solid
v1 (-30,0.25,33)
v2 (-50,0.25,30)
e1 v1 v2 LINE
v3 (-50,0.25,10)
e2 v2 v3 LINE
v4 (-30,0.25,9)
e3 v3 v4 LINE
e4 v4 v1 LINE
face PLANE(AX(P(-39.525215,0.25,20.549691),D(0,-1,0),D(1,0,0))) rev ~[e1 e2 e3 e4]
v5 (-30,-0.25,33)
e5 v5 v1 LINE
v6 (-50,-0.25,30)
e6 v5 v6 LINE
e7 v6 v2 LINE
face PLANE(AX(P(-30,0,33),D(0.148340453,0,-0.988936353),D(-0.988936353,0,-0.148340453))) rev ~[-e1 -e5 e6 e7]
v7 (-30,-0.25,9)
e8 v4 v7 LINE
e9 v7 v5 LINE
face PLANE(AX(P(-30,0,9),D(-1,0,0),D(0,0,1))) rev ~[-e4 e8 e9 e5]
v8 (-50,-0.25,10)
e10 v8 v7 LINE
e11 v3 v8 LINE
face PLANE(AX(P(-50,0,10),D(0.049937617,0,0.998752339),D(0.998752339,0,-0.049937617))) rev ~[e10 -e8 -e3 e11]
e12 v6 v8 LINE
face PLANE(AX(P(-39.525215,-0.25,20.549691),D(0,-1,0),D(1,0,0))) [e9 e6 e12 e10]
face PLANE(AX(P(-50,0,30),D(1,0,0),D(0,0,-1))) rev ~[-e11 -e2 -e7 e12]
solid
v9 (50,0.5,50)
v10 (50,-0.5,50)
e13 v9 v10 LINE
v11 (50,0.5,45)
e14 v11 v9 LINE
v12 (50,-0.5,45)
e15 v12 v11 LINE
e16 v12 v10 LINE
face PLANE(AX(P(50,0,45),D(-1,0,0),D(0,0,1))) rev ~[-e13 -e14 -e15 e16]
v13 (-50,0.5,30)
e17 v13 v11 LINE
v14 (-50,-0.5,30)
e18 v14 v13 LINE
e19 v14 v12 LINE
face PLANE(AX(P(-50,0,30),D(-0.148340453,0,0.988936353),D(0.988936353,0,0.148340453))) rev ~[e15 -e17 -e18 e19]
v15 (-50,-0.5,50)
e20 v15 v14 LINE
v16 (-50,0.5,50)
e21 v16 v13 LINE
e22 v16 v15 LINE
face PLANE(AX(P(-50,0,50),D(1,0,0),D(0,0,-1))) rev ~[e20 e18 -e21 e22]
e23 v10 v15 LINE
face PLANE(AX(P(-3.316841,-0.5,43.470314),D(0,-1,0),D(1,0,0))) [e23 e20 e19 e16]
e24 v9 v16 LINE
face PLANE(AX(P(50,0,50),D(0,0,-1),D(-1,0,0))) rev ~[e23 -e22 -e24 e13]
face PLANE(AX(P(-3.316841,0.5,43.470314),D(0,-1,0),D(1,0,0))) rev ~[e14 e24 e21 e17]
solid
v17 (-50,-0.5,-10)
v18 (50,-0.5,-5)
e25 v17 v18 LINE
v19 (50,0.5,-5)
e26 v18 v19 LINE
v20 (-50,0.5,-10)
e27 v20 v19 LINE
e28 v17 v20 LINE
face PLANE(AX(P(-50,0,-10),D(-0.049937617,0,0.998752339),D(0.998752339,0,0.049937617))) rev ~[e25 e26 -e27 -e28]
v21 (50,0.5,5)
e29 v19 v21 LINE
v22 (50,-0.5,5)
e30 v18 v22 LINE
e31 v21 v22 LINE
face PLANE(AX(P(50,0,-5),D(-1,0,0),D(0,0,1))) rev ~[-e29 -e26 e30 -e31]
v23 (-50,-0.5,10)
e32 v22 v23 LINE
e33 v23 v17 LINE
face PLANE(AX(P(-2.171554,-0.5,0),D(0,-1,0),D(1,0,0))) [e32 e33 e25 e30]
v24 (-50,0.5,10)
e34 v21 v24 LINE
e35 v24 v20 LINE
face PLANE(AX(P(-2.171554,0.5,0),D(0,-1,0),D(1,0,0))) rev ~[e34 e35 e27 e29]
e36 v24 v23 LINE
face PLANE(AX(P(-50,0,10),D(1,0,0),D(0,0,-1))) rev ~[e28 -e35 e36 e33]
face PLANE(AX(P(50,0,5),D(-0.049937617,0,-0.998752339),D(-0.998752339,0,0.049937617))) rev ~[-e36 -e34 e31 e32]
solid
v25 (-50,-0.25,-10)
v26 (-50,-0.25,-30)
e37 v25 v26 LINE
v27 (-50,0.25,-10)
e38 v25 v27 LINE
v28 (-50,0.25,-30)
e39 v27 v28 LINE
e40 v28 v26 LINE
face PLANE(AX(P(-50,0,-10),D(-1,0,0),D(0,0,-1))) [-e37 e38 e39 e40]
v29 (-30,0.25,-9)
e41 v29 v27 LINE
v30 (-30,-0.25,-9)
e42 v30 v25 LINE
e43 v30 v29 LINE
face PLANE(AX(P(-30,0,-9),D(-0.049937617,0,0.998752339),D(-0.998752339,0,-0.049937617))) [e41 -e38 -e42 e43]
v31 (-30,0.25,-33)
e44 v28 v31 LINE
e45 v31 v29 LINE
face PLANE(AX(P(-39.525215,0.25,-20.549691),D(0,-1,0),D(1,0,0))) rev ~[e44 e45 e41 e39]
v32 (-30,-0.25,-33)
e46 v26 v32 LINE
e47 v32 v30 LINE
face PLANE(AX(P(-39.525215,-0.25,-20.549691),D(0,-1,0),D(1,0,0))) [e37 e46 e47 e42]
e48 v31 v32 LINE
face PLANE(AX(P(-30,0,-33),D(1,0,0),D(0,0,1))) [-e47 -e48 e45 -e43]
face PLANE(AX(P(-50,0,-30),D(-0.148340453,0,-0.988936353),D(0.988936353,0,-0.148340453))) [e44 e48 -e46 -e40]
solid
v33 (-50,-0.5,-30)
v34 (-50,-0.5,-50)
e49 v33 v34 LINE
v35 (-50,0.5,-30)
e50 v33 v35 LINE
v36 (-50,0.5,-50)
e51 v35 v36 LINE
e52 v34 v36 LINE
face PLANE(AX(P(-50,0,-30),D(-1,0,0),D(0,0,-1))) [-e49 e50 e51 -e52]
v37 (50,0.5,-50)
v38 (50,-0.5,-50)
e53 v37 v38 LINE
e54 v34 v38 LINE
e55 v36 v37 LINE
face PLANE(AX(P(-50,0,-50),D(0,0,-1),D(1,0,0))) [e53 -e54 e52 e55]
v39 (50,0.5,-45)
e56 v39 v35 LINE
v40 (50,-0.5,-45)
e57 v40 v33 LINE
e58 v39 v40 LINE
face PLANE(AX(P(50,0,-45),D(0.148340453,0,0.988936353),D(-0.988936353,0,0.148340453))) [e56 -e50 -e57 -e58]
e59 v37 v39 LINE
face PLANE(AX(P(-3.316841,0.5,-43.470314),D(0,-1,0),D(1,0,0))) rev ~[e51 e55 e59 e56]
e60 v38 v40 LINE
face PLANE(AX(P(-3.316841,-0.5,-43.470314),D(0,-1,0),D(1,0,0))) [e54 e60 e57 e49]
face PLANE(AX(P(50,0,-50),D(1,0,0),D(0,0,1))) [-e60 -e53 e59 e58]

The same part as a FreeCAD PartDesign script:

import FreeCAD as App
import Part
import Sketcher
Q = App.Units.Quantity

doc = App.newDocument("Part")
body = doc.addObject("PartDesign::Body", "Body")
body.AllowCompound = True

sketch1 = doc.addObject("Sketcher::SketchObject", "Sketch")
body.addObject(sketch1)
sketch1.AttachmentSupport = (doc.XZ_Plane, [""])
sketch1.MapMode = "FlatFace"
sketch1.addGeometry([
    Part.LineSegment(App.Vector(50, 45, 0), App.Vector(50, 50, 0)),
    Part.LineSegment(App.Vector(50, 50, 0), App.Vector(-50, 50, 0)),
    Part.LineSegment(App.Vector(-50, 50, 0), App.Vector(-50, 30, 0)),
    Part.LineSegment(App.Vector(-50, 30, 0), App.Vector(50, 45, 0)),
    Part.LineSegment(App.Vector(50, -5, 0), App.Vector(50, 5, 0)),
    Part.LineSegment(App.Vector(50, 5, 0), App.Vector(-50, 10, 0)),
    Part.LineSegment(App.Vector(-50, 10, 0), App.Vector(-50, -10, 0)),
    Part.LineSegment(App.Vector(-50, -10, 0), App.Vector(50, -5, 0)),
    Part.LineSegment(App.Vector(-50, -50, 0), App.Vector(50, -50, 0)),
    Part.LineSegment(App.Vector(50, -50, 0), App.Vector(50, -45, 0)),
    Part.LineSegment(App.Vector(50, -45, 0), App.Vector(-50, -30, 0)),
    Part.LineSegment(App.Vector(-50, -30, 0), App.Vector(-50, -50, 0)),
], False)
sketch1.addConstraint([
    Sketcher.Constraint("Coincident", 0, 2, 1, 1),
    Sketcher.Constraint("Coincident", 1, 2, 2, 1),
    Sketcher.Constraint("Coincident", 2, 2, 3, 1),
    Sketcher.Constraint("Coincident", 3, 2, 0, 1),
    Sketcher.Constraint("Coincident", 4, 2, 5, 1),
    Sketcher.Constraint("Coincident", 5, 2, 6, 1),
    Sketcher.Constraint("Coincident", 6, 2, 7, 1),
    Sketcher.Constraint("Coincident", 7, 2, 4, 1),
    Sketcher.Constraint("Coincident", 8, 2, 9, 1),
    Sketcher.Constraint("Coincident", 9, 2, 10, 1),
    Sketcher.Constraint("Coincident", 10, 2, 11, 1),
    Sketcher.Constraint("Coincident", 11, 2, 8, 1),
    Sketcher.Constraint("Vertical", 0),
    Sketcher.Constraint("Horizontal", 1),
    Sketcher.Constraint("Vertical", 2),
    Sketcher.Constraint("Vertical", 4),
    Sketcher.Constraint("Vertical", 6),
    Sketcher.Constraint("Horizontal", 8),
    Sketcher.Constraint("Vertical", 9),
    Sketcher.Constraint("Vertical", 11),
    Sketcher.Constraint("Symmetric", 1, 2, 8, 2, -1, 1),
    Sketcher.Constraint("Symmetric", 3, 2, 9, 2, -1),
    Sketcher.Constraint("Symmetric", 2, 2, 10, 2, -1),
    Sketcher.Constraint("Vertical", 3, 2, 4, 2),
    Sketcher.Constraint("Vertical", 2, 2, 5, 2),
    Sketcher.Constraint("Equal", 2, 6),
    Sketcher.Constraint("Equal", 5, 7),
    Sketcher.Constraint("DistanceX", 1, 2, 1, 1, Q("100 mm")),
    Sketcher.Constraint("DistanceY", 0, 1, 0, 2, Q("5 mm")),
    Sketcher.Constraint("DistanceY", 2, 2, 2, 1, Q("20 mm")),
    Sketcher.Constraint("DistanceY", 4, 1, 4, 2, Q("10 mm")),
    Sketcher.Constraint("DistanceY", -1, 1, 0, 2, Q("50 mm")),
    Sketcher.Constraint("DistanceY", -1, 1, 4, 2, Q("5 mm")),
])
pad1 = doc.addObject("PartDesign::Pad", "Pad")
body.addObject(pad1)
pad1.Profile = sketch1
pad1.Length = 1
pad1.Midplane = True
body2 = doc.addObject("PartDesign::Body", "Body001")
body2.AllowCompound = True

sketch2 = doc.addObject("Sketcher::SketchObject", "Sketch001")
body2.addObject(sketch2)
sketch2.AttachmentSupport = (doc.getObject("XZ_Plane001"), [""])
sketch2.MapMode = "FlatFace"
sketch2.addGeometry([
    Part.LineSegment(App.Vector(-50, 30, 0), App.Vector(-50, 10, 0)),
    Part.LineSegment(App.Vector(-50, 10, 0), App.Vector(-30, 9, 0)),
    Part.LineSegment(App.Vector(-30, 9, 0), App.Vector(-30, 33, 0)),
    Part.LineSegment(App.Vector(-30, 33, 0), App.Vector(-50, 30, 0)),
    Part.LineSegment(App.Vector(-50, -10, 0), App.Vector(-50, -30, 0)),
    Part.LineSegment(App.Vector(-50, -30, 0), App.Vector(-30, -33, 0)),
    Part.LineSegment(App.Vector(-30, -33, 0), App.Vector(-30, -9, 0)),
    Part.LineSegment(App.Vector(-30, -9, 0), App.Vector(-50, -10, 0)),
], False)
sketch2.addConstraint([
    Sketcher.Constraint("Coincident", 0, 2, 1, 1),
    Sketcher.Constraint("Coincident", 1, 2, 2, 1),
    Sketcher.Constraint("Coincident", 2, 2, 3, 1),
    Sketcher.Constraint("Coincident", 3, 2, 0, 1),
    Sketcher.Constraint("Coincident", 4, 2, 5, 1),
    Sketcher.Constraint("Coincident", 5, 2, 6, 1),
    Sketcher.Constraint("Coincident", 6, 2, 7, 1),
    Sketcher.Constraint("Coincident", 7, 2, 4, 1),
    Sketcher.Constraint("Vertical", 0),
    Sketcher.Constraint("Vertical", 2),
    Sketcher.Constraint("Vertical", 4),
    Sketcher.Constraint("Vertical", 6),
    Sketcher.Constraint("Symmetric", 3, 2, 4, 2, -1),
    Sketcher.Constraint("Symmetric", 2, 2, 5, 2, -1),
    Sketcher.Constraint("Equal", 0, 4),
    Sketcher.Constraint("Equal", 2, 6),
    Sketcher.Constraint("DistanceY", 0, 2, 0, 1, Q("20 mm")),
    Sketcher.Constraint("DistanceY", 2, 1, 2, 2, Q("24 mm")),
    Sketcher.Constraint("DistanceX", 0, 2, -1, 1, Q("50 mm")),
    Sketcher.Constraint("DistanceY", -1, 1, 0, 2, Q("10 mm")),
    Sketcher.Constraint("DistanceX", 1, 2, -1, 1, Q("30 mm")),
    Sketcher.Constraint("DistanceY", -1, 1, 1, 2, Q("9 mm")),
])
pad2 = doc.addObject("PartDesign::Pad", "Pad001")
body2.addObject(pad2)
pad2.Profile = sketch2
pad2.Length = 0.5
pad2.Midplane = True

doc.recompute()
